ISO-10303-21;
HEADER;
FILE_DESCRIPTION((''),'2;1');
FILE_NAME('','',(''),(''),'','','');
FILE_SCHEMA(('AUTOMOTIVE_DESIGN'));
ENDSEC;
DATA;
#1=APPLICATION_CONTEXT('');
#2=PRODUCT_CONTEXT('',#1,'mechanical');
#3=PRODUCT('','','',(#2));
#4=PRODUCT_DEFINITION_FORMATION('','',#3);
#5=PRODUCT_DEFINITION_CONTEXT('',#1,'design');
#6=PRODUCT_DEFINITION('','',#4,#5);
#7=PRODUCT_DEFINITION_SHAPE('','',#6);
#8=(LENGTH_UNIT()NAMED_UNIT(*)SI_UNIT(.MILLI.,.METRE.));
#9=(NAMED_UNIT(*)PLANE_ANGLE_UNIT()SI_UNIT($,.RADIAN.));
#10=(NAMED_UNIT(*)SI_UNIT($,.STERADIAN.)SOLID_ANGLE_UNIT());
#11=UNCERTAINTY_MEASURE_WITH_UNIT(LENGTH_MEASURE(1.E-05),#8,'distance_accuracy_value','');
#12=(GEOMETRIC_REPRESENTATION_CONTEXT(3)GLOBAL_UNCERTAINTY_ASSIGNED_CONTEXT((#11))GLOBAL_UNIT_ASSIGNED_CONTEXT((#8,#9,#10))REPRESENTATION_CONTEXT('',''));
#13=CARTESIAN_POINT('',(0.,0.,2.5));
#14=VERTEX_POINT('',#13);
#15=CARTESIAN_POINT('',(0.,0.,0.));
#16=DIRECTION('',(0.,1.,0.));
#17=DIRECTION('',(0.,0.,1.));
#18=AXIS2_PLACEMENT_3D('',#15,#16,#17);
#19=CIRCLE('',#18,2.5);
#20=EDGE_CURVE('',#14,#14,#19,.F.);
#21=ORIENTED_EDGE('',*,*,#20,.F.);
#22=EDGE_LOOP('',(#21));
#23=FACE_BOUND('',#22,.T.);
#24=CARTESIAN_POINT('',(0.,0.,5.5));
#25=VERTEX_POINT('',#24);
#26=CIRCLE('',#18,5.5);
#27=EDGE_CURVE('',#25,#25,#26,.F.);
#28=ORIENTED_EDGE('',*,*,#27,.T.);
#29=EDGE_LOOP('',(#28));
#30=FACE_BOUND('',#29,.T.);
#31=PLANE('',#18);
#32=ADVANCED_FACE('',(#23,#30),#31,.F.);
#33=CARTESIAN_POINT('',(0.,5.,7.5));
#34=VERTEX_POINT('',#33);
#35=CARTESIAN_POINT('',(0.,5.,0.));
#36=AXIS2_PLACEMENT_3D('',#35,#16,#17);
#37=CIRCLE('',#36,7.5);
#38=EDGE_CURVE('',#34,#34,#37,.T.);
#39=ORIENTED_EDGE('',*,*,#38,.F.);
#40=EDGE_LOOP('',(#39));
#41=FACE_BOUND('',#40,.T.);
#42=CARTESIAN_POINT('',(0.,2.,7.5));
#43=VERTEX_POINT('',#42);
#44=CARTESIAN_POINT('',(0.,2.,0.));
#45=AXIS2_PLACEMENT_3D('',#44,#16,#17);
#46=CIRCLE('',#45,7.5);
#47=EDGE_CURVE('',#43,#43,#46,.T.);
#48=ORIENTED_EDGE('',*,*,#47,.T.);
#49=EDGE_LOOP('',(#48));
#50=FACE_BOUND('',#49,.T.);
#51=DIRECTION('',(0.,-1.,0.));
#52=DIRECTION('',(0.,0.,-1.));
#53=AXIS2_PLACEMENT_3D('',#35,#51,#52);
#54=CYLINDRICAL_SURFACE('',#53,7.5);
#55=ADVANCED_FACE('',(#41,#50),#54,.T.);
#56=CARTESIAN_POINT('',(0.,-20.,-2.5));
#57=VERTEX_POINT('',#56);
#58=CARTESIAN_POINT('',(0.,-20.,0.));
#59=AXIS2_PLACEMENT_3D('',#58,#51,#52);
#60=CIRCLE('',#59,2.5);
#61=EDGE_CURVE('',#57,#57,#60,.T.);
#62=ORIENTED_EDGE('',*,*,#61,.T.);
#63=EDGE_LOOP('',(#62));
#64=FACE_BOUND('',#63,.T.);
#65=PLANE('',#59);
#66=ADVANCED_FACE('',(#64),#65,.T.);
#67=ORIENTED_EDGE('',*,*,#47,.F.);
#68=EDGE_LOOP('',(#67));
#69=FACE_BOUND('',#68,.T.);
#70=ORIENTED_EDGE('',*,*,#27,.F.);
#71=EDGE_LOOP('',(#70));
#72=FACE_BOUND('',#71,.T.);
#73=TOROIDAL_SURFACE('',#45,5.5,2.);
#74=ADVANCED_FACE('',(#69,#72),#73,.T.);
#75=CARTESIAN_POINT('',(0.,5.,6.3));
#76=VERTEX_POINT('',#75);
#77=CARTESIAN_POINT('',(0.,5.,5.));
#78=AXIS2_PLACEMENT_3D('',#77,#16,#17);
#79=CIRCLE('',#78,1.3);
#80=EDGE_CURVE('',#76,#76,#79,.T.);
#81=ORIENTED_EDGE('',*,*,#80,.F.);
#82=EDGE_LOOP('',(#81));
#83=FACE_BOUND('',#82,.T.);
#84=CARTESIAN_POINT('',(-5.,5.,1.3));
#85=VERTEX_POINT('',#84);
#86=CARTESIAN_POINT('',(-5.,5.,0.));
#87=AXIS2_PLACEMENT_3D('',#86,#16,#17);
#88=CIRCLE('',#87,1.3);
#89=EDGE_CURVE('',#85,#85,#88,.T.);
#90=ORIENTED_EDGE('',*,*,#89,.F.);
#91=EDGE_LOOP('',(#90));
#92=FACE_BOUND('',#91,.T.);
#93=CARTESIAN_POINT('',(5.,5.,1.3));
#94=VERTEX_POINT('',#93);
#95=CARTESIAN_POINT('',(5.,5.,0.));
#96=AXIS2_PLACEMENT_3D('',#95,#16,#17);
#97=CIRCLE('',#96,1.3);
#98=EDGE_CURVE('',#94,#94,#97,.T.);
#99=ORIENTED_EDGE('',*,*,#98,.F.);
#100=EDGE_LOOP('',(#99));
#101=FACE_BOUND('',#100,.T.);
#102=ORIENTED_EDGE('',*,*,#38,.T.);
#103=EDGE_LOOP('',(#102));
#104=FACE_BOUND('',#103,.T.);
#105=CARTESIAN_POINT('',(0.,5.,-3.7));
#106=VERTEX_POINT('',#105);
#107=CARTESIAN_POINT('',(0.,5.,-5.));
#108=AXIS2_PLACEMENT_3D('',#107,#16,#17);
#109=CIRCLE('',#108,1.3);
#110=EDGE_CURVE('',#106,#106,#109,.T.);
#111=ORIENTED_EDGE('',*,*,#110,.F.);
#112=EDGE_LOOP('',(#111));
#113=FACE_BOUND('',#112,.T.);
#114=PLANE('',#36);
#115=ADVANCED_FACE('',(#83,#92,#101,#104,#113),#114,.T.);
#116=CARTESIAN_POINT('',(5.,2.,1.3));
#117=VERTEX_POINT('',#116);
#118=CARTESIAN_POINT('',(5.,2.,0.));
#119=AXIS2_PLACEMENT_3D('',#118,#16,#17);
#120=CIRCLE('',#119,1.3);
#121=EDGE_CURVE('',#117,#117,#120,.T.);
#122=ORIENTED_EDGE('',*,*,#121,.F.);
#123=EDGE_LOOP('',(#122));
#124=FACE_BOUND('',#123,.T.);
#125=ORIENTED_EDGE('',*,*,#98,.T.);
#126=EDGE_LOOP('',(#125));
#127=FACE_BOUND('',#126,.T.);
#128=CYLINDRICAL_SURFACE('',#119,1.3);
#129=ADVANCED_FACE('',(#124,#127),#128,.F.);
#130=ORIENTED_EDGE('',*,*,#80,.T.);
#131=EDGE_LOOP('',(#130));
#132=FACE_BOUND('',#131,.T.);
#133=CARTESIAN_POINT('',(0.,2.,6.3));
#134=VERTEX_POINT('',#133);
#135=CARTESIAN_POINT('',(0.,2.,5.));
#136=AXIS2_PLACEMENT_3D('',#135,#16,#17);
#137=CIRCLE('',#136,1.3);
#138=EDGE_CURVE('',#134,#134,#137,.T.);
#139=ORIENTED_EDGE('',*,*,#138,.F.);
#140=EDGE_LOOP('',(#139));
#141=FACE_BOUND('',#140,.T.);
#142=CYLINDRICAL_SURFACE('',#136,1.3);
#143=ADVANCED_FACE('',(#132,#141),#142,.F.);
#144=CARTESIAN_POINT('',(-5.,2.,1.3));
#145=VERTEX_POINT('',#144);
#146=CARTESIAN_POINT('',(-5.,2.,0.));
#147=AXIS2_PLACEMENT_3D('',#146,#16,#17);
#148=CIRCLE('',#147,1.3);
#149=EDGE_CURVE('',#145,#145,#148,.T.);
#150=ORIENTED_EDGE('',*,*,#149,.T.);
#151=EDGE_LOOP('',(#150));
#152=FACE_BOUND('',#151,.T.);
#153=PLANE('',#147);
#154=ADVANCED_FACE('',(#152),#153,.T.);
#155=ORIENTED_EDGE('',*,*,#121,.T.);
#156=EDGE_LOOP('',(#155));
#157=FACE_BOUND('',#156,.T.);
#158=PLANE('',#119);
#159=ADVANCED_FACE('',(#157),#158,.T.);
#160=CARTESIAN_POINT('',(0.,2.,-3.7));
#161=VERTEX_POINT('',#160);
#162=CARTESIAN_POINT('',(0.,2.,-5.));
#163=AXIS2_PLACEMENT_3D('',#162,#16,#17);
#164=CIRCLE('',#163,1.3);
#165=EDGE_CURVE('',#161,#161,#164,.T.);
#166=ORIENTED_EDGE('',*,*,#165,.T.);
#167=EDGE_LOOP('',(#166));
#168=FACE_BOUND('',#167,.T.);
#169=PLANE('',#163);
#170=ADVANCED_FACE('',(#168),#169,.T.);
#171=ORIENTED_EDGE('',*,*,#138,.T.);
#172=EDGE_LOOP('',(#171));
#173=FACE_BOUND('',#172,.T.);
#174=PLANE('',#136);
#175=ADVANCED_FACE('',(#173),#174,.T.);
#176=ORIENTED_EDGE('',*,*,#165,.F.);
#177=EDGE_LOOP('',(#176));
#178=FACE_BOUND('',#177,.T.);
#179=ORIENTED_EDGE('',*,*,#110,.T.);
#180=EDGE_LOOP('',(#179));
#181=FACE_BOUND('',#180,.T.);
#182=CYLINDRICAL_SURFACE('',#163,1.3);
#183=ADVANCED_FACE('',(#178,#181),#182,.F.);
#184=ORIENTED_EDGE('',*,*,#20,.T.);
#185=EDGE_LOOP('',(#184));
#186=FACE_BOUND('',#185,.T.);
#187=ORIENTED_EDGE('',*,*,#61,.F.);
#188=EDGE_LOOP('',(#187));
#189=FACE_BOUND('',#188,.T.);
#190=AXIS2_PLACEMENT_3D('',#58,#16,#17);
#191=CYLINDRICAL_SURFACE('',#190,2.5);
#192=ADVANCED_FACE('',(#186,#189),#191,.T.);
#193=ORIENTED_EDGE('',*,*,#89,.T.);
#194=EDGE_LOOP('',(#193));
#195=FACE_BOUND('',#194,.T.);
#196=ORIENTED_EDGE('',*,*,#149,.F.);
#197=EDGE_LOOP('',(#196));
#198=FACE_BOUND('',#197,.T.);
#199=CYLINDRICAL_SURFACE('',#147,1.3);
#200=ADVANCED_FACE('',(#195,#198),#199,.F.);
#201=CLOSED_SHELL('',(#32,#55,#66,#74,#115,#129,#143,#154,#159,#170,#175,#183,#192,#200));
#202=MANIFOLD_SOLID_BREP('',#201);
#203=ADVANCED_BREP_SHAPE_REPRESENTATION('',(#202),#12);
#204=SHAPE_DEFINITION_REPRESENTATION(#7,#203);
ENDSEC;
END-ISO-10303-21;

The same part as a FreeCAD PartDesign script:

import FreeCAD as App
import Part
import Sketcher

V = App.Vector


def edges_at(feature, points):
    """Names of the edges that pass closest to the given points."""
    edges = feature.Shape.Edges
    near = lambda p: min(range(len(edges)), key=lambda i: edges[i].distToShape(Part.Vertex(*p))[0])
    return sorted({f"Edge{near(p) + 1}" for p in points})

doc = App.newDocument("Part")
body = doc.addObject("PartDesign::Body", "Body")

# Sketch on XZ plane
sketch1 = body.newObject("Sketcher::SketchObject", "Sketch")
sketch1.AttachmentSupport = (doc.getObject("XZ_Plane"), [""])
sketch1.MapMode = "FlatFace"
sketch1.addGeometry(Part.Circle(V(0, 0, 0), V(0, 0, 1), 8), False)
sketch1.addConstraint([
    Sketcher.Constraint("Coincident", 0, 3, -1, 1),
    Sketcher.Constraint("Diameter", 0, 15.0),
])
pad1 = body.newObject("PartDesign::Pad", "Pad")
pad1.Profile = sketch1
pad1.Length = 5
pad1.Reversed = True

# Sketch on XZ plane
sketch2 = body.newObject("Sketcher::SketchObject", "Sketch001")
sketch2.AttachmentSupport = (doc.getObject("XZ_Plane"), [""])
sketch2.MapMode = "FlatFace"
sketch2.AttachmentOffset = App.Placement(V(0, 0, -5), App.Rotation())
sketch2.addGeometry([
    Part.Circle(V(0, -5, 0), V(0, 0, 1), 1.3),
    Part.Circle(V(5, 0, 0), V(0, 0, 1), 1.3),
    Part.Circle(V(0, 5, 0), V(0, 0, 1), 1.3),
    Part.Circle(V(-5, 0, 0), V(0, 0, 1), 1.3),
], False)
sketch2.addConstraint([
    Sketcher.Constraint("Equal", 0, 1),
    Sketcher.Constraint("Equal", 1, 2),
    Sketcher.Constraint("Equal", 2, 3),
    Sketcher.Constraint("Symmetric", 0, 3, 2, 3, -1, 1),
    Sketcher.Constraint("Symmetric", 1, 3, 3, 3, -1, 1),
    Sketcher.Constraint("PointOnObject", 0, 3, -2),
    Sketcher.Constraint("PointOnObject", 1, 3, -1),
    Sketcher.Constraint("Diameter", 0, 2.6),
    Sketcher.Constraint("DistanceY", 0, 3, -1, 1, 5.0),
    Sketcher.Constraint("DistanceX", -1, 1, 1, 3, 5.0),
])
pocket1 = body.newObject("PartDesign::Pocket", "Pocket")
pocket1.Profile = sketch2
pocket1.Length = 3
pocket1.Reversed = True
doc.recompute()

fillet = body.newObject("PartDesign::Fillet", "Fillet")
fillet.Base = (pocket1, edges_at(pocket1, [(0, 0, -7.5)]))
fillet.Radius = 2

# Sketch on XZ plane
sketch3 = body.newObject("Sketcher::SketchObject", "Sketch002")
sketch3.AttachmentSupport = (doc.getObject("XZ_Plane"), [""])
sketch3.MapMode = "FlatFace"
sketch3.addGeometry(Part.Circle(V(0, 0, 0), V(0, 0, 1), 2.5), False)
sketch3.addConstraint([
    Sketcher.Constraint("Coincident", 0, 3, -1, 1),
    Sketcher.Constraint("Diameter", 0, 5.0),
])
pad2 = body.newObject("PartDesign::Pad", "Pad001")
pad2.Profile = sketch3
pad2.Length = 20

doc.recompute()
